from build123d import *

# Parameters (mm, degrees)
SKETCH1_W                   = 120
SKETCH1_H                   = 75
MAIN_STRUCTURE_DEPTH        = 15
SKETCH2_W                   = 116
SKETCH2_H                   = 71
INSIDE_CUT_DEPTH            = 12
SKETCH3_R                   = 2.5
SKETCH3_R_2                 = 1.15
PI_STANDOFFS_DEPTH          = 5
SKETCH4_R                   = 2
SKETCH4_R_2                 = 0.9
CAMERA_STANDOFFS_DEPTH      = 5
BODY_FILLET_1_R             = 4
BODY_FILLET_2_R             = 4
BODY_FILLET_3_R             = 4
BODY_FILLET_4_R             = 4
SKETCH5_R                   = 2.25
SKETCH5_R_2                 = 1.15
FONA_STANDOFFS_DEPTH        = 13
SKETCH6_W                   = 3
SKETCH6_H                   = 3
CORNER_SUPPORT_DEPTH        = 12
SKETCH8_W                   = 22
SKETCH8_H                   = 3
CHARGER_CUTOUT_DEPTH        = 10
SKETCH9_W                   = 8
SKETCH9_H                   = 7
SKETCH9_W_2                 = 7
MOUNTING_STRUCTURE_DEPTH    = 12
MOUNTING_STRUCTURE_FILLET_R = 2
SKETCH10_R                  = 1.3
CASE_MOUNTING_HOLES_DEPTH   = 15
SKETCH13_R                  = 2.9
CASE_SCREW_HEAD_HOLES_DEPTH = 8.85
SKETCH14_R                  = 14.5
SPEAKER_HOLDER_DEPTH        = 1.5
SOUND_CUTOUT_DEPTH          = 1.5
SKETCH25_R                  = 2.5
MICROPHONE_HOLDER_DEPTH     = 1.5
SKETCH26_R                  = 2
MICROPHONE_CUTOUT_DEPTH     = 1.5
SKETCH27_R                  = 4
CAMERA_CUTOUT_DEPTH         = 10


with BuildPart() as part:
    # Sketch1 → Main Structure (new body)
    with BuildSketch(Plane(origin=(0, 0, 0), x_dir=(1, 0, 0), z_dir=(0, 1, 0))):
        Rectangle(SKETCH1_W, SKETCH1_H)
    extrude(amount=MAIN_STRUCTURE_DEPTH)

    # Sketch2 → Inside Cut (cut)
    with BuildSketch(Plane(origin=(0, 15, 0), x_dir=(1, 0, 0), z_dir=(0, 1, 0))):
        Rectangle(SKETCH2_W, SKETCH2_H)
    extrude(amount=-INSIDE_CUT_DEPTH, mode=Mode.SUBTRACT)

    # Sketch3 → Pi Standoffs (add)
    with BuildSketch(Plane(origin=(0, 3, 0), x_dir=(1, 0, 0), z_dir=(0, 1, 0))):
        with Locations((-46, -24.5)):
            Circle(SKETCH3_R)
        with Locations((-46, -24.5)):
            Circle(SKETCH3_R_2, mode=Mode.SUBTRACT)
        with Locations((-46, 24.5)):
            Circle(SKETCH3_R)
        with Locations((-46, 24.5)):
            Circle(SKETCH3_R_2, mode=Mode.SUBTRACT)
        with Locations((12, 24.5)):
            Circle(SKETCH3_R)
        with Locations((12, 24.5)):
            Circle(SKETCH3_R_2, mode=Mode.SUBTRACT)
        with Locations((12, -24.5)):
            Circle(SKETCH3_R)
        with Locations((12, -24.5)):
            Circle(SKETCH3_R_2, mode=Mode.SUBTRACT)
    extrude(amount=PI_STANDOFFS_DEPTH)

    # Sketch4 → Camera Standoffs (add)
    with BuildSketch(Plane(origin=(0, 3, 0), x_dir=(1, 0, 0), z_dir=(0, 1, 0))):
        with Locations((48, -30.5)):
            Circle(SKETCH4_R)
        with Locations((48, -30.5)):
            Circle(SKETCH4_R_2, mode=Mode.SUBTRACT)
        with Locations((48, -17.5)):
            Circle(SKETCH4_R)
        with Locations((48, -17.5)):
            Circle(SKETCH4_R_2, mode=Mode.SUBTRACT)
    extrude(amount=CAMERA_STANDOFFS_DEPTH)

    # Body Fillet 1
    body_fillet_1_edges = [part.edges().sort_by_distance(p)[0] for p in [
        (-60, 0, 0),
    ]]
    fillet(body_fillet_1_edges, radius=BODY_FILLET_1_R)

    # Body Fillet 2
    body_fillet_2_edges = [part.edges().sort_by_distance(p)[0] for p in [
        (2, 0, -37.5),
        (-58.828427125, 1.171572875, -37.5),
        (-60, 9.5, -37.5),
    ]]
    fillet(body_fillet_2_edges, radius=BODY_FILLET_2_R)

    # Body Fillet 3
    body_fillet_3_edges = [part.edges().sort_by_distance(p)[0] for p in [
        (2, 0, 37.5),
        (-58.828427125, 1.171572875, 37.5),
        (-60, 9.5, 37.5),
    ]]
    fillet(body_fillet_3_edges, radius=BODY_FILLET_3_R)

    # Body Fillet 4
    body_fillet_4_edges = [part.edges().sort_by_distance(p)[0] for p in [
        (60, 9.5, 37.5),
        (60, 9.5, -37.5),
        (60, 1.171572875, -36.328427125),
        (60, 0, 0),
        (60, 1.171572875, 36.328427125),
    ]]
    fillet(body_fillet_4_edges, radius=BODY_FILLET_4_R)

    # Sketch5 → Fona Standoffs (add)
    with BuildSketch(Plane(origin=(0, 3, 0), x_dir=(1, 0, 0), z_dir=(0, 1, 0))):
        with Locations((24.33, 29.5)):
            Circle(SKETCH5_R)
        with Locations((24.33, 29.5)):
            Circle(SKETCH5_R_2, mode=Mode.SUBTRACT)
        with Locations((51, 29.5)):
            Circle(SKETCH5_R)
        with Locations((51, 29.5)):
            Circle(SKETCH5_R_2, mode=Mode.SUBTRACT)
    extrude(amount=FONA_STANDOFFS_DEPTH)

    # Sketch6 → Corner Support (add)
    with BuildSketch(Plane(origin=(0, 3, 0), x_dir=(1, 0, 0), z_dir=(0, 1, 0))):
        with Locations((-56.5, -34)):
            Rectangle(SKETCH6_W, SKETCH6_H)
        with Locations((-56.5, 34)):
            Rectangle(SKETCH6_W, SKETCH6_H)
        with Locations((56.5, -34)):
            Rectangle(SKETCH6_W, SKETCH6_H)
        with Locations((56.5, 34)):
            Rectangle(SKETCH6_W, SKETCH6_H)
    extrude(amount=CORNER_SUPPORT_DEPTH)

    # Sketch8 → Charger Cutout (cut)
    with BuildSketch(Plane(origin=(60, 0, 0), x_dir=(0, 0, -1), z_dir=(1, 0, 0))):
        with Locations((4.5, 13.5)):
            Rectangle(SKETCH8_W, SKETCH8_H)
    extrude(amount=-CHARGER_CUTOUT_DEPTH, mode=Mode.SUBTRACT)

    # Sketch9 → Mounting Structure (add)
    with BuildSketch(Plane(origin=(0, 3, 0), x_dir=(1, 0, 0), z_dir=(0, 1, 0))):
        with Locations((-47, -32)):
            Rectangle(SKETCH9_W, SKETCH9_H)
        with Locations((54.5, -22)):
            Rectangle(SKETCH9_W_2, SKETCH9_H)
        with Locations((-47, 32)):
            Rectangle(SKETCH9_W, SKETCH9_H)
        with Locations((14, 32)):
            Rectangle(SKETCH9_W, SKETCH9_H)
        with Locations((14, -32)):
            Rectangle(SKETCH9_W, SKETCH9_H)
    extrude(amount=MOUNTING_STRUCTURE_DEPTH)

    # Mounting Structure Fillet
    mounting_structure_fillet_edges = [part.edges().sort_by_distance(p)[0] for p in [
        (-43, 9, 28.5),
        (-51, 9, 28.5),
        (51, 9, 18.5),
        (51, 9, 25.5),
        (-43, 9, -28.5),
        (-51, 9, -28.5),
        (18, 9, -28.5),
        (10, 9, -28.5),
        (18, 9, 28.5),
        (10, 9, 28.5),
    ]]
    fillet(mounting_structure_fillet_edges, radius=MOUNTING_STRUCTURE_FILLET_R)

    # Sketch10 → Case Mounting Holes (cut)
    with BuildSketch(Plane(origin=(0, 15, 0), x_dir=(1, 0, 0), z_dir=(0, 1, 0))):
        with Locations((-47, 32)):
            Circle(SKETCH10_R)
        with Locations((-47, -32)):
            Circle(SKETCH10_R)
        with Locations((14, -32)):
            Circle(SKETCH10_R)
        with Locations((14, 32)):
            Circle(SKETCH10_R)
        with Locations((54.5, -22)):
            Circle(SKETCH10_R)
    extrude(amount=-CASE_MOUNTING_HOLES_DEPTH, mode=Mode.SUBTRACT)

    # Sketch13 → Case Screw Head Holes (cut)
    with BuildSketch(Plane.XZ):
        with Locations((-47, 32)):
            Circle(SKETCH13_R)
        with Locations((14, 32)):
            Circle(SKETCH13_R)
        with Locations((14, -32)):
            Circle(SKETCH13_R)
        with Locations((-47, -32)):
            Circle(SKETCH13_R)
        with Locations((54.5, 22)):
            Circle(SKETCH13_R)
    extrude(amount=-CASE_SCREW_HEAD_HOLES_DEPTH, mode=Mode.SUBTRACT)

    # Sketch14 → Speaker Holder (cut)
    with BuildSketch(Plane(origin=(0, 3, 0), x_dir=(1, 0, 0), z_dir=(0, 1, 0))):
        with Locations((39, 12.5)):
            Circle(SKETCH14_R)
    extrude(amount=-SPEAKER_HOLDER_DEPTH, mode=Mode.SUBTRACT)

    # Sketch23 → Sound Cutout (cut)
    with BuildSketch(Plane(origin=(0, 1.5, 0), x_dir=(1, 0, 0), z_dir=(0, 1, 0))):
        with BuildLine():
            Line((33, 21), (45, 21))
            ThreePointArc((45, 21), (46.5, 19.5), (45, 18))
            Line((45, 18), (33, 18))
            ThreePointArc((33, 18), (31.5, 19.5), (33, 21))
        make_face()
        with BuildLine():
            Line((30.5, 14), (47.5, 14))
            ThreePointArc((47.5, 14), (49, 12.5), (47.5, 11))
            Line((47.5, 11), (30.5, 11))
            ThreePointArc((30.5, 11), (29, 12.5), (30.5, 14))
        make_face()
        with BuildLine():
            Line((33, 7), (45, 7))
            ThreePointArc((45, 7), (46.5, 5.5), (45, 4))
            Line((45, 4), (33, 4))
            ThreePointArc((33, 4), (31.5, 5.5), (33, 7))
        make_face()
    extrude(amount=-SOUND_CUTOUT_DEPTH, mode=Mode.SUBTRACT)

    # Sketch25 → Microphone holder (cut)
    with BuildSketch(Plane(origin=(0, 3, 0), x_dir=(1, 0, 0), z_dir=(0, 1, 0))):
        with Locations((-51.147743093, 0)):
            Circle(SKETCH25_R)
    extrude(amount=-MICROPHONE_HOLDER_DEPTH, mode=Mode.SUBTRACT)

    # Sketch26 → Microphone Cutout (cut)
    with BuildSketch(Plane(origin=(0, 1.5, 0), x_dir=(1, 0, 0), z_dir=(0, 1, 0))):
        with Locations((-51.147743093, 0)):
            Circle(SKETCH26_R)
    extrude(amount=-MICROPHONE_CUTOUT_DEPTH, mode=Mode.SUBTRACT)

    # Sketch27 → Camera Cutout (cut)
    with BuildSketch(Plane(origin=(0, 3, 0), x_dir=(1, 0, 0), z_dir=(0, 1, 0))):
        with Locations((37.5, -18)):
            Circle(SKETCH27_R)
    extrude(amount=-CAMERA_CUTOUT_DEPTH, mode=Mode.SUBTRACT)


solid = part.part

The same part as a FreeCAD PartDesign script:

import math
import FreeCAD as App
import Part
import Sketcher
from FreeCAD import Vector
Q = App.Units.Quantity


def edges_at(feature, points):
    """Names of the edges that pass closest to the given points."""
    edges = feature.Shape.Edges
    near = lambda p: min(range(len(edges)), key=lambda i: edges[i].distToShape(Part.Vertex(*p))[0])
    return sorted({f"Edge{near(p) + 1}" for p in points})


def add_polygon(sketch, points):
    """Adds a closed chain of lines whose ends are joined by coincident constraints."""
    first, n = sketch.GeometryCount, len(points)
    for a, b in zip(points, points[1:] + points[:1]):
        sketch.addGeometry(Part.LineSegment(App.Vector(*a, 0), App.Vector(*b, 0)), False)
    for i in range(n):
        sketch.addConstraint(Sketcher.Constraint("Coincident", first + i, 2, first + (i + 1) % n, 1))

doc = App.newDocument("Part")
body = doc.addObject("PartDesign::Body", "Body")

# Sketch on XZ plane
sketch1 = body.newObject("Sketcher::SketchObject", "Sketch")
sketch1.AttachmentSupport = (doc.getObject("XZ_Plane"), [""])
sketch1.MapMode = "FlatFace"
add_polygon(sketch1, [(-60, -38), (-60, 38), (60, 38), (60, -38)])  # lines 0-3
sketch1.addConstraint(Sketcher.Constraint("Vertical", 0))
sketch1.addConstraint(Sketcher.Constraint("Horizontal", 1))
sketch1.addConstraint(Sketcher.Constraint("Vertical", 2))
sketch1.addConstraint(Sketcher.Constraint("Horizontal", 3))
sketch1.addConstraint(Sketcher.Constraint("Symmetric", 0, 2, 2, 2, -1, 1))
sketch1.addConstraint(Sketcher.Constraint("DistanceX", 1, 1, 1, 2, Q("120 mm")))
sketch1.addConstraint(Sketcher.Constraint("DistanceY", 0, 1, 0, 2, Q("75 mm")))
pad1 = body.newObject("PartDesign::Pad", "Pad")
pad1.Profile = sketch1
pad1.Length = 15
pad1.Reversed = True

# Sketch on XZ plane
sketch2 = body.newObject("Sketcher::SketchObject", "Sketch001")
sketch2.AttachmentSupport = (doc.getObject("XZ_Plane"), [""])
sketch2.MapMode = "FlatFace"
sketch2.AttachmentOffset = App.Placement(Vector(0, 0, -15), App.Rotation())
add_polygon(sketch2, [(-58, -36), (-58, 36), (58, 36), (58, -36)])  # lines 0-3
sketch2.addConstraint(Sketcher.Constraint("Vertical", 0))
sketch2.addConstraint(Sketcher.Constraint("Horizontal", 1))
sketch2.addConstraint(Sketcher.Constraint("Vertical", 2))
sketch2.addConstraint(Sketcher.Constraint("Horizontal", 3))
sketch2.addConstraint(Sketcher.Constraint("Symmetric", 0, 2, 2, 2, -1, 1))
sketch2.addConstraint(Sketcher.Constraint("DistanceX", 1, 1, 1, 2, Q("116 mm")))
sketch2.addConstraint(Sketcher.Constraint("DistanceY", 0, 1, 0, 2, Q("71 mm")))
pocket1 = body.newObject("PartDesign::Pocket", "Pocket")
pocket1.Profile = sketch2
pocket1.Length = 12
pocket1.Reversed = True

# Sketch on XZ plane
sketch3 = body.newObject("Sketcher::SketchObject", "Sketch002")
sketch3.AttachmentSupport = (doc.getObject("XZ_Plane"), [""])
sketch3.MapMode = "FlatFace"
sketch3.AttachmentOffset = App.Placement(Vector(0, 0, -3), App.Rotation())
sketch3.addGeometry(Part.Circle(Vector(-46, 24.5, 0), Vector(0, 0, 1), 2.5), False)
sketch3.addGeometry(Part.Circle(Vector(-46, 24.5, 0), Vector(0, 0, 1), 1.1), False)
sketch3.addGeometry(Part.Circle(Vector(-46, -24.5, 0), Vector(0, 0, 1), 2.5), False)
sketch3.addGeometry(Part.Circle(Vector(-46, -24.5, 0), Vector(0, 0, 1), 1.1), False)
sketch3.addGeometry(Part.Circle(Vector(12, -24.5, 0), Vector(0, 0, 1), 2.5), False)
sketch3.addGeometry(Part.Circle(Vector(12, -24.5, 0), Vector(0, 0, 1), 1.1), False)
sketch3.addGeometry(Part.Circle(Vector(12, 24.5, 0), Vector(0, 0, 1), 2.5), False)
sketch3.addGeometry(Part.Circle(Vector(12, 24.5, 0), Vector(0, 0, 1), 1.1), False)
sketch3.addConstraint(Sketcher.Constraint("Coincident", 1, 3, 0, 3))
sketch3.addConstraint(Sketcher.Constraint("Coincident", 3, 3, 2, 3))
sketch3.addConstraint(Sketcher.Constraint("Coincident", 5, 3, 4, 3))
sketch3.addConstraint(Sketcher.Constraint("Coincident", 7, 3, 6, 3))
sketch3.addConstraint(Sketcher.Constraint("Equal", 0, 2))
sketch3.addConstraint(Sketcher.Constraint("Equal", 1, 3))
sketch3.addConstraint(Sketcher.Constraint("Equal", 2, 4))
sketch3.addConstraint(Sketcher.Constraint("Equal", 3, 5))
sketch3.addConstraint(Sketcher.Constraint("Equal", 4, 6))
sketch3.addConstraint(Sketcher.Constraint("Equal", 5, 7))
sketch3.addConstraint(Sketcher.Constraint("Symmetric", 0, 3, 2, 3, -1))
sketch3.addConstraint(Sketcher.Constraint("Symmetric", 4, 3, 6, 3, -1))
sketch3.addConstraint(Sketcher.Constraint("Horizontal", 3, 3, 4, 3))
sketch3.addConstraint(Sketcher.Constraint("Diameter", 0, Q("5 mm")))
sketch3.addConstraint(Sketcher.Constraint("Diameter", 1, Q("2.3 mm")))
sketch3.addConstraint(Sketcher.Constraint("DistanceX", 0, 3, -1, 1, Q("46 mm")))
sketch3.addConstraint(Sketcher.Constraint("DistanceX", -1, 1, 4, 3, Q("12 mm")))
sketch3.addConstraint(Sketcher.Constraint("DistanceY", 2, 3, 0, 3, Q("49 mm")))
pad2 = body.newObject("PartDesign::Pad", "Pad001")
pad2.Profile = sketch3
pad2.Length = 5
pad2.Reversed = True

# Sketch on XZ plane
sketch4 = body.newObject("Sketcher::SketchObject", "Sketch003")
sketch4.AttachmentSupport = (doc.getObject("XZ_Plane"), [""])
sketch4.MapMode = "FlatFace"
sketch4.AttachmentOffset = App.Placement(Vector(0, 0, -3), App.Rotation())
sketch4.addGeometry(Part.Circle(Vector(48, 30.5, 0), Vector(0, 0, 1), 2), False)
sketch4.addGeometry(Part.Circle(Vector(48, 30.5, 0), Vector(0, 0, 1), 0.9), False)
sketch4.addGeometry(Part.Circle(Vector(48, 17.5, 0), Vector(0, 0, 1), 2), False)
sketch4.addGeometry(Part.Circle(Vector(48, 17.5, 0), Vector(0, 0, 1), 0.9), False)
sketch4.addConstraint(Sketcher.Constraint("Coincident", 1, 3, 0, 3))
sketch4.addConstraint(Sketcher.Constraint("Coincident", 3, 3, 2, 3))
sketch4.addConstraint(Sketcher.Constraint("Equal", 0, 2))
sketch4.addConstraint(Sketcher.Constraint("Equal", 1, 3))
sketch4.addConstraint(Sketcher.Constraint("Vertical", 1, 3, 2, 3))
sketch4.addConstraint(Sketcher.Constraint("Diameter", 0, Q("4 mm")))
sketch4.addConstraint(Sketcher.Constraint("Diameter", 1, Q("1.8 mm")))
sketch4.addConstraint(Sketcher.Constraint("DistanceX", -1, 1, 0, 3, Q("48 mm")))
sketch4.addConstraint(Sketcher.Constraint("DistanceY", 2, 3, 0, 3, Q("13 mm")))
sketch4.addConstraint(Sketcher.Constraint("DistanceY", -1, 1, 0, 3, Q("30.5 mm")))
pad3 = body.newObject("PartDesign::Pad", "Pad002")
pad3.Profile = sketch4
pad3.Length = 5
pad3.Reversed = True
doc.recompute()

fillet = body.newObject("PartDesign::Fillet", "Fillet")
fillet.Base = (pad3, edges_at(pad3, [(-60, 0, 0)]))
fillet.Radius = 4
doc.recompute()

fillet2 = body.newObject("PartDesign::Fillet", "Fillet001")
fillet2.Base = (fillet, edges_at(fillet, [(2, 0, -37.5), (-58.828, 1.172, -37.5), (-60, 9.5, -37.5)]))
fillet2.Radius = 4
doc.recompute()

fillet3 = body.newObject("PartDesign::Fillet", "Fillet002")
fillet3.Base = (fillet2, edges_at(fillet2, [(2, 0, 37.5), (-58.828, 1.172, 37.5), (-60, 9.5, 37.5)]))
fillet3.Radius = 4
doc.recompute()

fillet4 = body.newObject("PartDesign::Fillet", "Fillet003")
fillet4.Base = (fillet3, edges_at(fillet3, [
    (60, 9.5, 37.5),
    (60, 9.5, -37.5),
    (60, 1.172, -36.328),
    (60, 0, 0),
    (60, 1.172, 36.328),
]))
fillet4.Radius = 4

# Sketch on XZ plane
sketch5 = body.newObject("Sketcher::SketchObject", "Sketch004")
sketch5.AttachmentSupport = (doc.getObject("XZ_Plane"), [""])
sketch5.MapMode = "FlatFace"
sketch5.AttachmentOffset = App.Placement(Vector(0, 0, -3), App.Rotation())
sketch5.addGeometry(Part.Circle(Vector(24.3, -29.5, 0), Vector(0, 0, 1), 2.2), False)
sketch5.addGeometry(Part.Circle(Vector(24.3, -29.5, 0), Vector(0, 0, 1), 1.1), False)
sketch5.addGeometry(Part.Circle(Vector(51, -29.5, 0), Vector(0, 0, 1), 2.2), False)
sketch5.addGeometry(Part.Circle(Vector(51, -29.5, 0), Vector(0, 0, 1), 1.1), False)
sketch5.addConstraint(Sketcher.Constraint("Coincident", 1, 3, 0, 3))
sketch5.addConstraint(Sketcher.Constraint("Coincident", 3, 3, 2, 3))
sketch5.addConstraint(Sketcher.Constraint("Equal", 0, 2))
sketch5.addConstraint(Sketcher.Constraint("Equal", 1, 3))
sketch5.addConstraint(Sketcher.Constraint("Horizontal", 1, 3, 2, 3))
sketch5.addConstraint(Sketcher.Constraint("Diameter", 0, Q("4.5 mm")))
sketch5.addConstraint(Sketcher.Constraint("Diameter", 1, Q("2.3 mm")))
sketch5.addConstraint(Sketcher.Constraint("DistanceX", -1, 1, 2, 3, Q("51 mm")))
sketch5.addConstraint(Sketcher.Constraint("DistanceY", 0, 3, -1, 1, Q("29.5 mm")))
sketch5.addConstraint(Sketcher.Constraint("DistanceX", -1, 1, 0, 3, Q("24.33 mm")))
pad4 = body.newObject("PartDesign::Pad", "Pad003")
pad4.Profile = sketch5
pad4.Length = 13
pad4.Reversed = True

# Sketch on XZ plane
sketch6 = body.newObject("Sketcher::SketchObject", "Sketch005")
sketch6.AttachmentSupport = (doc.getObject("XZ_Plane"), [""])
sketch6.MapMode = "FlatFace"
sketch6.AttachmentOffset = App.Placement(Vector(0, 0, -3), App.Rotation())
add_polygon(sketch6, [(-58, 32.5), (-58, 35.5), (-55, 35.5), (-55, 32.5)])  # lines 0-3
add_polygon(sketch6, [(-58, -35.5), (-58, -32.5), (-55, -32.5), (-55, -35.5)])  # lines 4-7
add_polygon(sketch6, [(55, 32.5), (55, 35.5), (58, 35.5), (58, 32.5)])  # lines 8-11
add_polygon(sketch6, [(55, -35.5), (55, -32.5), (58, -32.5), (58, -35.5)])  # lines 12-15
sketch6.addConstraint(Sketcher.Constraint("Vertical", 0))
sketch6.addConstraint(Sketcher.Constraint("Horizontal", 1))
sketch6.addConstraint(Sketcher.Constraint("Vertical", 2))
sketch6.addConstraint(Sketcher.Constraint("Horizontal", 3))
sketch6.addConstraint(Sketcher.Constraint("Vertical", 4))
sketch6.addConstraint(Sketcher.Constraint("Horizontal", 5))
sketch6.addConstraint(Sketcher.Constraint("Vertical", 6))
sketch6.addConstraint(Sketcher.Constraint("Horizontal", 7))
sketch6.addConstraint(Sketcher.Constraint("Vertical", 8))
sketch6.addConstraint(Sketcher.Constraint("Horizontal", 9))
sketch6.addConstraint(Sketcher.Constraint("Vertical", 10))
sketch6.addConstraint(Sketcher.Constraint("Horizontal", 11))
sketch6.addConstraint(Sketcher.Constraint("Vertical", 12))
sketch6.addConstraint(Sketcher.Constraint("Horizontal", 13))
sketch6.addConstraint(Sketcher.Constraint("Vertical", 14))
sketch6.addConstraint(Sketcher.Constraint("Horizontal", 15))
sketch6.addConstraint(Sketcher.Constraint("Symmetric", 6, 2, 8, 2, -1, 1))
sketch6.addConstraint(Sketcher.Constraint("Symmetric", 4, 2, 10, 2, -1, 1))
sketch6.addConstraint(Sketcher.Constraint("Symmetric", 2, 2, 12, 2, -1, 1))
sketch6.addConstraint(Sketcher.Constraint("Symmetric", 0, 2, 14, 2, -1, 1))
sketch6.addConstraint(Sketcher.Constraint("Symmetric", 1, 2, 8, 2, -2))
sketch6.addConstraint(Sketcher.Constraint("Symmetric", 3, 2, 10, 2, -2))
sketch6.addConstraint(Sketcher.Constraint("Equal", 15, 0))
sketch6.addConstraint(Sketcher.Constraint("DistanceX", 1, 1, 1, 2, Q("3 mm")))
sketch6.addConstraint(Sketcher.Constraint("DistanceX", 0, 2, -1, 1, Q("58 mm")))
sketch6.addConstraint(Sketcher.Constraint("DistanceY", 4, 2, 3, 2, Q("65 mm")))
pad5 = body.newObject("PartDesign::Pad", "Pad004")
pad5.Profile = sketch6
pad5.Length = 12
pad5.Reversed = True

# Sketch on YZ plane
sketch7 = body.newObject("Sketcher::SketchObject", "Sketch006")
sketch7.AttachmentSupport = (doc.getObject("YZ_Plane"), [""])
sketch7.MapMode = "FlatFace"
sketch7.AttachmentOffset = App.Placement(Vector(0, 0, 60), App.Rotation())
add_polygon(sketch7, [(15, 6.5), (12, 6.5), (12, -15.5), (15, -15.5)])  # lines 0-3
sketch7.addConstraint(Sketcher.Constraint("Horizontal", 0))
sketch7.addConstraint(Sketcher.Constraint("Vertical", 1))
sketch7.addConstraint(Sketcher.Constraint("Horizontal", 2))
sketch7.addConstraint(Sketcher.Constraint("Vertical", 3))
sketch7.addConstraint(Sketcher.Constraint("DistanceX", 0, 2, 0, 1, Q("3 mm")))
sketch7.addConstraint(Sketcher.Constraint("DistanceY", 1, 2, 1, 1, Q("22 mm")))
sketch7.addConstraint(Sketcher.Constraint("DistanceX", -1, 1, 0, 2, Q("12 mm")))
sketch7.addConstraint(Sketcher.Constraint("DistanceY", -1, 1, 0, 2, Q("6.5 mm")))
pocket2 = body.newObject("PartDesign::Pocket", "Pocket001")
pocket2.Profile = sketch7
pocket2.Length = 10

# Sketch on XZ plane
sketch8 = body.newObject("Sketcher::SketchObject", "Sketch007")
sketch8.AttachmentSupport = (doc.getObject("XZ_Plane"), [""])
sketch8.MapMode = "FlatFace"
sketch8.AttachmentOffset = App.Placement(Vector(0, 0, -3), App.Rotation())
add_polygon(sketch8, [(-51, 28), (-51, 36), (-43, 36), (-43, 28)])  # lines 0-3
add_polygon(sketch8, [(51, 18), (51, 26), (58, 26), (58, 18)])  # lines 4-7
add_polygon(sketch8, [(-51, -36), (-51, -28), (-43, -28), (-43, -36)])  # lines 8-11
add_polygon(sketch8, [(10, -36), (10, -28), (18, -28), (18, -36)])  # lines 12-15
add_polygon(sketch8, [(10, 28), (10, 36), (18, 36), (18, 28)])  # lines 16-19
sketch8.addConstraint(Sketcher.Constraint("Vertical", 0))
sketch8.addConstraint(Sketcher.Constraint("Horizontal", 1))
sketch8.addConstraint(Sketcher.Constraint("Vertical", 2))
sketch8.addConstraint(Sketcher.Constraint("Horizontal", 3))
sketch8.addConstraint(Sketcher.Constraint("Vertical", 4))
sketch8.addConstraint(Sketcher.Constraint("Horizontal", 5))
sketch8.addConstraint(Sketcher.Constraint("Vertical", 6))
sketch8.addConstraint(Sketcher.Constraint("Horizontal", 7))
sketch8.addConstraint(Sketcher.Constraint("Vertical", 8))
sketch8.addConstraint(Sketcher.Constraint("Horizontal", 9))
sketch8.addConstraint(Sketcher.Constraint("Vertical", 10))
sketch8.addConstraint(Sketcher.Constraint("Horizontal", 11))
sketch8.addConstraint(Sketcher.Constraint("Vertical", 12))
sketch8.addConstraint(Sketcher.Constraint("Horizontal", 13))
sketch8.addConstraint(Sketcher.Constraint("Vertical", 14))
sketch8.addConstraint(Sketcher.Constraint("Horizontal", 15))
sketch8.addConstraint(Sketcher.Constraint("Vertical", 16))
sketch8.addConstraint(Sketcher.Constraint("Horizontal", 17))
sketch8.addConstraint(Sketcher.Constraint("Vertical", 18))
sketch8.addConstraint(Sketcher.Constraint("Horizontal", 19))
sketch8.addConstraint(Sketcher.Constraint("Symmetric", 3, 2, 8, 2, -1))
sketch8.addConstraint(Sketcher.Constraint("Symmetric", 1, 2, 10, 2, -1))
sketch8.addConstraint(Sketcher.Constraint("Symmetric", 15, 2, 16, 2, -1))
sketch8.addConstraint(Sketcher.Constraint("Symmetric", 13, 2, 18, 2, -1))
sketch8.addConstraint(Sketcher.Constraint("Horizontal", 9, 2, 12, 2))
sketch8.addConstraint(Sketcher.Constraint("Horizontal", 11, 2, 14, 2))
sketch8.addConstraint(Sketcher.Constraint("Equal", 11, 13))
sketch8.addConstraint(Sketcher.Constraint("Equal", 7, 0))
sketch8.addConstraint(Sketcher.Constraint("Equal", 2, 4))
sketch8.addConstraint(Sketcher.Constraint("DistanceX", 1, 1, 1, 2, Q("8 mm")))
sketch8.addConstraint(Sketcher.Constraint("DistanceX", 5, 1, 5, 2, Q("7 mm")))
sketch8.addConstraint(Sketcher.Constraint("DistanceX", 0, 2, -1, 1, Q("51 mm")))
sketch8.addConstraint(Sketcher.Constraint("DistanceX", -1, 1, 4, 2, Q("51 mm")))
sketch8.addConstraint(Sketcher.Constraint("DistanceX", -1, 1, 12, 2, Q("10 mm")))
sketch8.addConstraint(Sketcher.Constraint("DistanceY", 4, 2, 2, 2, Q("3 mm")))
sketch8.addConstraint(Sketcher.Constraint("DistanceY", 8, 2, 3, 2, Q("57 mm")))
pad6 = body.newObject("PartDesign::Pad", "Pad005")
pad6.Profile = sketch8
pad6.Length = 12
pad6.Reversed = True
doc.recompute()

fillet5 = body.newObject("PartDesign::Fillet", "Fillet004")
fillet5.Base = (pad6, edges_at(pad6, [
    (-43, 9, 28.5),
    (-51, 9, 28.5),
    (51, 9, 18.5),
    (51, 9, 25.5),
    (-43, 9, -28.5),
    (-51, 9, -28.5),
    (18, 9, -28.5),
    (10, 9, -28.5),
    (18, 9, 28.5),
    (10, 9, 28.5),
]))
fillet5.Radius = 2

# Sketch on XZ plane
sketch9 = body.newObject("Sketcher::SketchObject", "Sketch008")
sketch9.AttachmentSupport = (doc.getObject("XZ_Plane"), [""])
sketch9.MapMode = "FlatFace"
sketch9.AttachmentOffset = App.Placement(Vector(0, 0, -15), App.Rotation())
sketch9.addGeometry(Part.Circle(Vector(-47, -32, 0), Vector(0, 0, 1), 1.3), False)
sketch9.addGeometry(Part.Circle(Vector(-47, 32, 0), Vector(0, 0, 1), 1.3), False)
sketch9.addGeometry(Part.Circle(Vector(14, 32, 0), Vector(0, 0, 1), 1.3), False)
sketch9.addGeometry(Part.Circle(Vector(14, -32, 0), Vector(0, 0, 1), 1.3), False)
sketch9.addGeometry(Part.Circle(Vector(54.5, 22, 0), Vector(0, 0, 1), 1.3), False)
sketch9.addConstraint(Sketcher.Constraint("Equal", 0, 1))
sketch9.addConstraint(Sketcher.Constraint("Equal", 1, 2))
sketch9.addConstraint(Sketcher.Constraint("Equal", 2, 3))
sketch9.addConstraint(Sketcher.Constraint("Equal", 3, 4))
sketch9.addConstraint(Sketcher.Constraint("Symmetric", 0, 3, 1, 3, -1))
sketch9.addConstraint(Sketcher.Constraint("Symmetric", 2, 3, 3, 3, -1))
sketch9.addConstraint(Sketcher.Constraint("Horizontal", 1, 3, 2, 3))
sketch9.addConstraint(Sketcher.Constraint("Diameter", 0, Q("2.6 mm")))
sketch9.addConstraint(Sketcher.Constraint("DistanceX", 0, 3, -1, 1, Q("47 mm")))
sketch9.addConstraint(Sketcher.Constraint("DistanceY", 0, 3, -1, 1, Q("32 mm")))
sketch9.addConstraint(Sketcher.Constraint("DistanceX", -1, 1, 2, 3, Q("14 mm")))
sketch9.addConstraint(Sketcher.Constraint("DistanceY", -1, 1, 4, 3, Q("22 mm")))
sketch9.addConstraint(Sketcher.Constraint("DistanceX", -1, 1, 4, 3, Q("54.5 mm")))
pocket3 = body.newObject("PartDesign::Pocket", "Pocket002")
pocket3.Profile = sketch9
pocket3.Length = 15
pocket3.Reversed = True

# Sketch on XZ plane
sketch10 = body.newObject("Sketcher::SketchObject", "Sketch009")
sketch10.AttachmentSupport = (doc.getObject("XZ_Plane"), [""])
sketch10.MapMode = "FlatFace"
sketch10.addGeometry(Part.Circle(Vector(-47, 32, 0), Vector(0, 0, 1), 2.9), False)
sketch10.addGeometry(Part.Circle(Vector(14, 32, 0), Vector(0, 0, 1), 2.9), False)
sketch10.addGeometry(Part.Circle(Vector(14, -32, 0), Vector(0, 0, 1), 2.9), False)
sketch10.addGeometry(Part.Circle(Vector(-47, -32, 0), Vector(0, 0, 1), 2.9), False)
sketch10.addGeometry(Part.Circle(Vector(54.5, 22, 0), Vector(0, 0, 1), 2.9), False)
sketch10.addConstraint(Sketcher.Constraint("Equal", 0, 1))
sketch10.addConstraint(Sketcher.Constraint("Equal", 1, 2))
sketch10.addConstraint(Sketcher.Constraint("Equal", 2, 3))
sketch10.addConstraint(Sketcher.Constraint("Equal", 3, 4))
sketch10.addConstraint(Sketcher.Constraint("Symmetric", 1, 3, 2, 3, -1))
sketch10.addConstraint(Sketcher.Constraint("Symmetric", 0, 3, 3, 3, -1))
sketch10.addConstraint(Sketcher.Constraint("Horizontal", 0, 3, 1, 3))
sketch10.addConstraint(Sketcher.Constraint("Diameter", 0, Q("5.8 mm")))
sketch10.addConstraint(Sketcher.Constraint("DistanceX", 0, 3, -1, 1, Q("47 mm")))
sketch10.addConstraint(Sketcher.Constraint("DistanceY", -1, 1, 0, 3, Q("32 mm")))
sketch10.addConstraint(Sketcher.Constraint("DistanceX", -1, 1, 1, 3, Q("14 mm")))
sketch10.addConstraint(Sketcher.Constraint("DistanceY", -1, 1, 4, 3, Q("22 mm")))
sketch10.addConstraint(Sketcher.Constraint("DistanceX", -1, 1, 4, 3, Q("54.5 mm")))
pocket4 = body.newObject("PartDesign::Pocket", "Pocket003")
pocket4.Profile = sketch10
pocket4.Length = 8.85

# Sketch on XZ plane
sketch11 = body.newObject("Sketcher::SketchObject", "Sketch010")
sketch11.AttachmentSupport = (doc.getObject("XZ_Plane"), [""])
sketch11.MapMode = "FlatFace"
sketch11.AttachmentOffset = App.Placement(Vector(0, 0, -3), App.Rotation())
sketch11.addGeometry(Part.Circle(Vector(39, -12, 0), Vector(0, 0, 1), 14), False)
sketch11.addConstraint(Sketcher.Constraint("Diameter", 0, Q("29 mm")))
sketch11.addConstraint(Sketcher.Constraint("DistanceX", -1, 1, 0, 3, Q("39 mm")))
sketch11.addConstraint(Sketcher.Constraint("DistanceY", 0, 3, -1, 1, Q("12.5 mm")))
pocket5 = body.newObject("PartDesign::Pocket", "Pocket004")
pocket5.Profile = sketch11
pocket5.Length = 1.5
pocket5.Reversed = True

# Sketch on XZ plane
sketch12 = body.newObject("Sketcher::SketchObject", "Sketch011")
sketch12.AttachmentSupport = (doc.getObject("XZ_Plane"), [""])
sketch12.MapMode = "FlatFace"
sketch12.AttachmentOffset = App.Placement(Vector(0, 0, -1.5), App.Rotation())
sketch12.addGeometry(Part.LineSegment(Vector(45, -21, 0), Vector(33, -21, 0)), False)
sketch12.addGeometry(Part.ArcOfCircle(Part.Circle(Vector(33, -19.5, 0), Vector(0, 0, 1), 1.5), math.radians(90), math.radians(270)), False)
sketch12.addGeometry(Part.LineSegment(Vector(33, -18, 0), Vector(45, -18, 0)), False)
sketch12.addGeometry(Part.ArcOfCircle(Part.Circle(Vector(45, -19.5, 0), Vector(0, 0, 1), 1.5), math.radians(-90), math.radians(90)), False)
sketch12.addGeometry(Part.LineSegment(Vector(47.5, -14, 0), Vector(30.5, -14, 0)), False)
sketch12.addGeometry(Part.ArcOfCircle(Part.Circle(Vector(30.5, -12.5, 0), Vector(0, 0, 1), 1.5), math.radians(90), math.radians(270)), False)
sketch12.addGeometry(Part.LineSegment(Vector(30.5, -11, 0), Vector(47.5, -11, 0)), False)
sketch12.addGeometry(Part.ArcOfCircle(Part.Circle(Vector(47.5, -12.5, 0), Vector(0, 0, 1), 1.5), math.radians(-90), math.radians(90)), False)
sketch12.addGeometry(Part.LineSegment(Vector(45, -7, 0), Vector(33, -7, 0)), False)
sketch12.addGeometry(Part.ArcOfCircle(Part.Circle(Vector(33, -5.5, 0), Vector(0, 0, 1), 1.5), math.radians(90), math.radians(270)), False)
sketch12.addGeometry(Part.LineSegment(Vector(33, -4, 0), Vector(45, -4, 0)), False)
sketch12.addGeometry(Part.ArcOfCircle(Part.Circle(Vector(45, -5.5, 0), Vector(0, 0, 1), 1.5), math.radians(-90), math.radians(90)), False)
sketch12.addConstraint(Sketcher.Constraint("Tangent", 0, 2, 1, 2))
sketch12.addConstraint(Sketcher.Constraint("Tangent", 1, 1, 2, 1))
sketch12.addConstraint(Sketcher.Constraint("Tangent", 2, 2, 3, 2))
sketch12.addConstraint(Sketcher.Constraint("Tangent", 3, 1, 0, 1))
sketch12.addConstraint(Sketcher.Constraint("Tangent", 4, 2, 5, 2))
sketch12.addConstraint(Sketcher.Constraint("Tangent", 5, 1, 6, 1))
sketch12.addConstraint(Sketcher.Constraint("Tangent", 6, 2, 7, 2))
sketch12.addConstraint(Sketcher.Constraint("Tangent", 7, 1, 4, 1))
sketch12.addConstraint(Sketcher.Constraint("Tangent", 8, 2, 9, 2))
sketch12.addConstraint(Sketcher.Constraint("Tangent", 9, 1, 10, 1))
sketch12.addConstraint(Sketcher.Constraint("Tangent", 10, 2, 11, 2))
sketch12.addConstraint(Sketcher.Constraint("Tangent", 11, 1, 8, 1))
sketch12.addConstraint(Sketcher.Constraint("Horizontal", 0))
sketch12.addConstraint(Sketcher.Constraint("Horizontal", 2))
sketch12.addConstraint(Sketcher.Constraint("Horizontal", 4))
sketch12.addConstraint(Sketcher.Constraint("Horizontal", 6))
sketch12.addConstraint(Sketcher.Constraint("Horizontal", 8))
sketch12.addConstraint(Sketcher.Constraint("Horizontal", 10))
sketch12.addConstraint(Sketcher.Constraint("Equal", 3, 5))
sketch12.addConstraint(Sketcher.Constraint("Equal", 7, 9))
sketch12.addConstraint(Sketcher.Constraint("Vertical", 1, 3, 9, 3))
sketch12.addConstraint(Sketcher.Constraint("Vertical", 3, 3, 11, 3))
sketch12.addConstraint(Sketcher.Constraint("Radius", 1, Q("1.5 mm")))
sketch12.addConstraint(Sketcher.Constraint("DistanceX", 0, 2, 0, 1, Q("12 mm")))
sketch12.addConstraint(Sketcher.Constraint("DistanceX", 4, 2, 4, 1, Q("17 mm")))
sketch12.addConstraint(Sketcher.Constraint("DistanceX", -1, 1, 1, 3, Q("33 mm")))
sketch12.addConstraint(Sketcher.Constraint("DistanceY", 0, 2, -1, 1, Q("21 mm")))
sketch12.addConstraint(Sketcher.Constraint("DistanceY", 4, 2, -1, 1, Q("14 mm")))
sketch12.addConstraint(Sketcher.Constraint("DistanceY", 8, 2, -1, 1, Q("7 mm")))
sketch12.addConstraint(Sketcher.Constraint("DistanceX", -1, 1, 5, 3, Q("30.5 mm")))
pocket6 = body.newObject("PartDesign::Pocket", "Pocket005")
pocket6.Profile = sketch12
pocket6.Length = 1.5
pocket6.Reversed = True

# Sketch on XZ plane
sketch13 = body.newObject("Sketcher::SketchObject", "Sketch012")
sketch13.AttachmentSupport = (doc.getObject("XZ_Plane"), [""])
sketch13.MapMode = "FlatFace"
sketch13.AttachmentOffset = App.Placement(Vector(0, 0, -3), App.Rotation())
sketch13.addGeometry(Part.Circle(Vector(-51.1, 0, 0), Vector(0, 0, 1), 2.5), False)
sketch13.addConstraint(Sketcher.Constraint("PointOnObject", 0, 3, -1))
sketch13.addConstraint(Sketcher.Constraint("Diameter", 0, Q("5 mm")))
sketch13.addConstraint(Sketcher.Constraint("DistanceX", 0, 3, -1, 1, Q("51.147743 mm")))
pocket7 = body.newObject("PartDesign::Pocket", "Pocket006")
pocket7.Profile = sketch13
pocket7.Length = 1.5
pocket7.Reversed = True

# Sketch on XZ plane
sketch14 = body.newObject("Sketcher::SketchObject", "Sketch013")
sketch14.AttachmentSupport = (doc.getObject("XZ_Plane"), [""])
sketch14.MapMode = "FlatFace"
sketch14.AttachmentOffset = App.Placement(Vector(0, 0, -1.5), App.Rotation())
sketch14.addGeometry(Part.Circle(Vector(-51.1, 0, 0), Vector(0, 0, 1), 2), False)
sketch14.addConstraint(Sketcher.Constraint("PointOnObject", 0, 3, -1))
sketch14.addConstraint(Sketcher.Constraint("Diameter", 0, Q("4 mm")))
sketch14.addConstraint(Sketcher.Constraint("DistanceX", 0, 3, -1, 1, Q("51.147743 mm")))
pocket8 = body.newObject("PartDesign::Pocket", "Pocket007")
pocket8.Profile = sketch14
pocket8.Length = 1.5
pocket8.Reversed = True

# Sketch on XZ plane
sketch15 = body.newObject("Sketcher::SketchObject", "Sketch014")
sketch15.AttachmentSupport = (doc.getObject("XZ_Plane"), [""])
sketch15.MapMode = "FlatFace"
sketch15.AttachmentOffset = App.Placement(Vector(0, 0, -3), App.Rotation())
sketch15.addGeometry(Part.Circle(Vector(37.5, 18, 0), Vector(0, 0, 1), 4), False)
sketch15.addConstraint(Sketcher.Constraint("Diameter", 0, Q("8 mm")))
sketch15.addConstraint(Sketcher.Constraint("DistanceY", -1, 1, 0, 3, Q("18 mm")))
sketch15.addConstraint(Sketcher.Constraint("DistanceX", -1, 1, 0, 3, Q("37.5 mm")))
pocket9 = body.newObject("PartDesign::Pocket", "Pocket008")
pocket9.Profile = sketch15
pocket9.Length = 10
pocket9.Reversed = True

doc.recompute()
